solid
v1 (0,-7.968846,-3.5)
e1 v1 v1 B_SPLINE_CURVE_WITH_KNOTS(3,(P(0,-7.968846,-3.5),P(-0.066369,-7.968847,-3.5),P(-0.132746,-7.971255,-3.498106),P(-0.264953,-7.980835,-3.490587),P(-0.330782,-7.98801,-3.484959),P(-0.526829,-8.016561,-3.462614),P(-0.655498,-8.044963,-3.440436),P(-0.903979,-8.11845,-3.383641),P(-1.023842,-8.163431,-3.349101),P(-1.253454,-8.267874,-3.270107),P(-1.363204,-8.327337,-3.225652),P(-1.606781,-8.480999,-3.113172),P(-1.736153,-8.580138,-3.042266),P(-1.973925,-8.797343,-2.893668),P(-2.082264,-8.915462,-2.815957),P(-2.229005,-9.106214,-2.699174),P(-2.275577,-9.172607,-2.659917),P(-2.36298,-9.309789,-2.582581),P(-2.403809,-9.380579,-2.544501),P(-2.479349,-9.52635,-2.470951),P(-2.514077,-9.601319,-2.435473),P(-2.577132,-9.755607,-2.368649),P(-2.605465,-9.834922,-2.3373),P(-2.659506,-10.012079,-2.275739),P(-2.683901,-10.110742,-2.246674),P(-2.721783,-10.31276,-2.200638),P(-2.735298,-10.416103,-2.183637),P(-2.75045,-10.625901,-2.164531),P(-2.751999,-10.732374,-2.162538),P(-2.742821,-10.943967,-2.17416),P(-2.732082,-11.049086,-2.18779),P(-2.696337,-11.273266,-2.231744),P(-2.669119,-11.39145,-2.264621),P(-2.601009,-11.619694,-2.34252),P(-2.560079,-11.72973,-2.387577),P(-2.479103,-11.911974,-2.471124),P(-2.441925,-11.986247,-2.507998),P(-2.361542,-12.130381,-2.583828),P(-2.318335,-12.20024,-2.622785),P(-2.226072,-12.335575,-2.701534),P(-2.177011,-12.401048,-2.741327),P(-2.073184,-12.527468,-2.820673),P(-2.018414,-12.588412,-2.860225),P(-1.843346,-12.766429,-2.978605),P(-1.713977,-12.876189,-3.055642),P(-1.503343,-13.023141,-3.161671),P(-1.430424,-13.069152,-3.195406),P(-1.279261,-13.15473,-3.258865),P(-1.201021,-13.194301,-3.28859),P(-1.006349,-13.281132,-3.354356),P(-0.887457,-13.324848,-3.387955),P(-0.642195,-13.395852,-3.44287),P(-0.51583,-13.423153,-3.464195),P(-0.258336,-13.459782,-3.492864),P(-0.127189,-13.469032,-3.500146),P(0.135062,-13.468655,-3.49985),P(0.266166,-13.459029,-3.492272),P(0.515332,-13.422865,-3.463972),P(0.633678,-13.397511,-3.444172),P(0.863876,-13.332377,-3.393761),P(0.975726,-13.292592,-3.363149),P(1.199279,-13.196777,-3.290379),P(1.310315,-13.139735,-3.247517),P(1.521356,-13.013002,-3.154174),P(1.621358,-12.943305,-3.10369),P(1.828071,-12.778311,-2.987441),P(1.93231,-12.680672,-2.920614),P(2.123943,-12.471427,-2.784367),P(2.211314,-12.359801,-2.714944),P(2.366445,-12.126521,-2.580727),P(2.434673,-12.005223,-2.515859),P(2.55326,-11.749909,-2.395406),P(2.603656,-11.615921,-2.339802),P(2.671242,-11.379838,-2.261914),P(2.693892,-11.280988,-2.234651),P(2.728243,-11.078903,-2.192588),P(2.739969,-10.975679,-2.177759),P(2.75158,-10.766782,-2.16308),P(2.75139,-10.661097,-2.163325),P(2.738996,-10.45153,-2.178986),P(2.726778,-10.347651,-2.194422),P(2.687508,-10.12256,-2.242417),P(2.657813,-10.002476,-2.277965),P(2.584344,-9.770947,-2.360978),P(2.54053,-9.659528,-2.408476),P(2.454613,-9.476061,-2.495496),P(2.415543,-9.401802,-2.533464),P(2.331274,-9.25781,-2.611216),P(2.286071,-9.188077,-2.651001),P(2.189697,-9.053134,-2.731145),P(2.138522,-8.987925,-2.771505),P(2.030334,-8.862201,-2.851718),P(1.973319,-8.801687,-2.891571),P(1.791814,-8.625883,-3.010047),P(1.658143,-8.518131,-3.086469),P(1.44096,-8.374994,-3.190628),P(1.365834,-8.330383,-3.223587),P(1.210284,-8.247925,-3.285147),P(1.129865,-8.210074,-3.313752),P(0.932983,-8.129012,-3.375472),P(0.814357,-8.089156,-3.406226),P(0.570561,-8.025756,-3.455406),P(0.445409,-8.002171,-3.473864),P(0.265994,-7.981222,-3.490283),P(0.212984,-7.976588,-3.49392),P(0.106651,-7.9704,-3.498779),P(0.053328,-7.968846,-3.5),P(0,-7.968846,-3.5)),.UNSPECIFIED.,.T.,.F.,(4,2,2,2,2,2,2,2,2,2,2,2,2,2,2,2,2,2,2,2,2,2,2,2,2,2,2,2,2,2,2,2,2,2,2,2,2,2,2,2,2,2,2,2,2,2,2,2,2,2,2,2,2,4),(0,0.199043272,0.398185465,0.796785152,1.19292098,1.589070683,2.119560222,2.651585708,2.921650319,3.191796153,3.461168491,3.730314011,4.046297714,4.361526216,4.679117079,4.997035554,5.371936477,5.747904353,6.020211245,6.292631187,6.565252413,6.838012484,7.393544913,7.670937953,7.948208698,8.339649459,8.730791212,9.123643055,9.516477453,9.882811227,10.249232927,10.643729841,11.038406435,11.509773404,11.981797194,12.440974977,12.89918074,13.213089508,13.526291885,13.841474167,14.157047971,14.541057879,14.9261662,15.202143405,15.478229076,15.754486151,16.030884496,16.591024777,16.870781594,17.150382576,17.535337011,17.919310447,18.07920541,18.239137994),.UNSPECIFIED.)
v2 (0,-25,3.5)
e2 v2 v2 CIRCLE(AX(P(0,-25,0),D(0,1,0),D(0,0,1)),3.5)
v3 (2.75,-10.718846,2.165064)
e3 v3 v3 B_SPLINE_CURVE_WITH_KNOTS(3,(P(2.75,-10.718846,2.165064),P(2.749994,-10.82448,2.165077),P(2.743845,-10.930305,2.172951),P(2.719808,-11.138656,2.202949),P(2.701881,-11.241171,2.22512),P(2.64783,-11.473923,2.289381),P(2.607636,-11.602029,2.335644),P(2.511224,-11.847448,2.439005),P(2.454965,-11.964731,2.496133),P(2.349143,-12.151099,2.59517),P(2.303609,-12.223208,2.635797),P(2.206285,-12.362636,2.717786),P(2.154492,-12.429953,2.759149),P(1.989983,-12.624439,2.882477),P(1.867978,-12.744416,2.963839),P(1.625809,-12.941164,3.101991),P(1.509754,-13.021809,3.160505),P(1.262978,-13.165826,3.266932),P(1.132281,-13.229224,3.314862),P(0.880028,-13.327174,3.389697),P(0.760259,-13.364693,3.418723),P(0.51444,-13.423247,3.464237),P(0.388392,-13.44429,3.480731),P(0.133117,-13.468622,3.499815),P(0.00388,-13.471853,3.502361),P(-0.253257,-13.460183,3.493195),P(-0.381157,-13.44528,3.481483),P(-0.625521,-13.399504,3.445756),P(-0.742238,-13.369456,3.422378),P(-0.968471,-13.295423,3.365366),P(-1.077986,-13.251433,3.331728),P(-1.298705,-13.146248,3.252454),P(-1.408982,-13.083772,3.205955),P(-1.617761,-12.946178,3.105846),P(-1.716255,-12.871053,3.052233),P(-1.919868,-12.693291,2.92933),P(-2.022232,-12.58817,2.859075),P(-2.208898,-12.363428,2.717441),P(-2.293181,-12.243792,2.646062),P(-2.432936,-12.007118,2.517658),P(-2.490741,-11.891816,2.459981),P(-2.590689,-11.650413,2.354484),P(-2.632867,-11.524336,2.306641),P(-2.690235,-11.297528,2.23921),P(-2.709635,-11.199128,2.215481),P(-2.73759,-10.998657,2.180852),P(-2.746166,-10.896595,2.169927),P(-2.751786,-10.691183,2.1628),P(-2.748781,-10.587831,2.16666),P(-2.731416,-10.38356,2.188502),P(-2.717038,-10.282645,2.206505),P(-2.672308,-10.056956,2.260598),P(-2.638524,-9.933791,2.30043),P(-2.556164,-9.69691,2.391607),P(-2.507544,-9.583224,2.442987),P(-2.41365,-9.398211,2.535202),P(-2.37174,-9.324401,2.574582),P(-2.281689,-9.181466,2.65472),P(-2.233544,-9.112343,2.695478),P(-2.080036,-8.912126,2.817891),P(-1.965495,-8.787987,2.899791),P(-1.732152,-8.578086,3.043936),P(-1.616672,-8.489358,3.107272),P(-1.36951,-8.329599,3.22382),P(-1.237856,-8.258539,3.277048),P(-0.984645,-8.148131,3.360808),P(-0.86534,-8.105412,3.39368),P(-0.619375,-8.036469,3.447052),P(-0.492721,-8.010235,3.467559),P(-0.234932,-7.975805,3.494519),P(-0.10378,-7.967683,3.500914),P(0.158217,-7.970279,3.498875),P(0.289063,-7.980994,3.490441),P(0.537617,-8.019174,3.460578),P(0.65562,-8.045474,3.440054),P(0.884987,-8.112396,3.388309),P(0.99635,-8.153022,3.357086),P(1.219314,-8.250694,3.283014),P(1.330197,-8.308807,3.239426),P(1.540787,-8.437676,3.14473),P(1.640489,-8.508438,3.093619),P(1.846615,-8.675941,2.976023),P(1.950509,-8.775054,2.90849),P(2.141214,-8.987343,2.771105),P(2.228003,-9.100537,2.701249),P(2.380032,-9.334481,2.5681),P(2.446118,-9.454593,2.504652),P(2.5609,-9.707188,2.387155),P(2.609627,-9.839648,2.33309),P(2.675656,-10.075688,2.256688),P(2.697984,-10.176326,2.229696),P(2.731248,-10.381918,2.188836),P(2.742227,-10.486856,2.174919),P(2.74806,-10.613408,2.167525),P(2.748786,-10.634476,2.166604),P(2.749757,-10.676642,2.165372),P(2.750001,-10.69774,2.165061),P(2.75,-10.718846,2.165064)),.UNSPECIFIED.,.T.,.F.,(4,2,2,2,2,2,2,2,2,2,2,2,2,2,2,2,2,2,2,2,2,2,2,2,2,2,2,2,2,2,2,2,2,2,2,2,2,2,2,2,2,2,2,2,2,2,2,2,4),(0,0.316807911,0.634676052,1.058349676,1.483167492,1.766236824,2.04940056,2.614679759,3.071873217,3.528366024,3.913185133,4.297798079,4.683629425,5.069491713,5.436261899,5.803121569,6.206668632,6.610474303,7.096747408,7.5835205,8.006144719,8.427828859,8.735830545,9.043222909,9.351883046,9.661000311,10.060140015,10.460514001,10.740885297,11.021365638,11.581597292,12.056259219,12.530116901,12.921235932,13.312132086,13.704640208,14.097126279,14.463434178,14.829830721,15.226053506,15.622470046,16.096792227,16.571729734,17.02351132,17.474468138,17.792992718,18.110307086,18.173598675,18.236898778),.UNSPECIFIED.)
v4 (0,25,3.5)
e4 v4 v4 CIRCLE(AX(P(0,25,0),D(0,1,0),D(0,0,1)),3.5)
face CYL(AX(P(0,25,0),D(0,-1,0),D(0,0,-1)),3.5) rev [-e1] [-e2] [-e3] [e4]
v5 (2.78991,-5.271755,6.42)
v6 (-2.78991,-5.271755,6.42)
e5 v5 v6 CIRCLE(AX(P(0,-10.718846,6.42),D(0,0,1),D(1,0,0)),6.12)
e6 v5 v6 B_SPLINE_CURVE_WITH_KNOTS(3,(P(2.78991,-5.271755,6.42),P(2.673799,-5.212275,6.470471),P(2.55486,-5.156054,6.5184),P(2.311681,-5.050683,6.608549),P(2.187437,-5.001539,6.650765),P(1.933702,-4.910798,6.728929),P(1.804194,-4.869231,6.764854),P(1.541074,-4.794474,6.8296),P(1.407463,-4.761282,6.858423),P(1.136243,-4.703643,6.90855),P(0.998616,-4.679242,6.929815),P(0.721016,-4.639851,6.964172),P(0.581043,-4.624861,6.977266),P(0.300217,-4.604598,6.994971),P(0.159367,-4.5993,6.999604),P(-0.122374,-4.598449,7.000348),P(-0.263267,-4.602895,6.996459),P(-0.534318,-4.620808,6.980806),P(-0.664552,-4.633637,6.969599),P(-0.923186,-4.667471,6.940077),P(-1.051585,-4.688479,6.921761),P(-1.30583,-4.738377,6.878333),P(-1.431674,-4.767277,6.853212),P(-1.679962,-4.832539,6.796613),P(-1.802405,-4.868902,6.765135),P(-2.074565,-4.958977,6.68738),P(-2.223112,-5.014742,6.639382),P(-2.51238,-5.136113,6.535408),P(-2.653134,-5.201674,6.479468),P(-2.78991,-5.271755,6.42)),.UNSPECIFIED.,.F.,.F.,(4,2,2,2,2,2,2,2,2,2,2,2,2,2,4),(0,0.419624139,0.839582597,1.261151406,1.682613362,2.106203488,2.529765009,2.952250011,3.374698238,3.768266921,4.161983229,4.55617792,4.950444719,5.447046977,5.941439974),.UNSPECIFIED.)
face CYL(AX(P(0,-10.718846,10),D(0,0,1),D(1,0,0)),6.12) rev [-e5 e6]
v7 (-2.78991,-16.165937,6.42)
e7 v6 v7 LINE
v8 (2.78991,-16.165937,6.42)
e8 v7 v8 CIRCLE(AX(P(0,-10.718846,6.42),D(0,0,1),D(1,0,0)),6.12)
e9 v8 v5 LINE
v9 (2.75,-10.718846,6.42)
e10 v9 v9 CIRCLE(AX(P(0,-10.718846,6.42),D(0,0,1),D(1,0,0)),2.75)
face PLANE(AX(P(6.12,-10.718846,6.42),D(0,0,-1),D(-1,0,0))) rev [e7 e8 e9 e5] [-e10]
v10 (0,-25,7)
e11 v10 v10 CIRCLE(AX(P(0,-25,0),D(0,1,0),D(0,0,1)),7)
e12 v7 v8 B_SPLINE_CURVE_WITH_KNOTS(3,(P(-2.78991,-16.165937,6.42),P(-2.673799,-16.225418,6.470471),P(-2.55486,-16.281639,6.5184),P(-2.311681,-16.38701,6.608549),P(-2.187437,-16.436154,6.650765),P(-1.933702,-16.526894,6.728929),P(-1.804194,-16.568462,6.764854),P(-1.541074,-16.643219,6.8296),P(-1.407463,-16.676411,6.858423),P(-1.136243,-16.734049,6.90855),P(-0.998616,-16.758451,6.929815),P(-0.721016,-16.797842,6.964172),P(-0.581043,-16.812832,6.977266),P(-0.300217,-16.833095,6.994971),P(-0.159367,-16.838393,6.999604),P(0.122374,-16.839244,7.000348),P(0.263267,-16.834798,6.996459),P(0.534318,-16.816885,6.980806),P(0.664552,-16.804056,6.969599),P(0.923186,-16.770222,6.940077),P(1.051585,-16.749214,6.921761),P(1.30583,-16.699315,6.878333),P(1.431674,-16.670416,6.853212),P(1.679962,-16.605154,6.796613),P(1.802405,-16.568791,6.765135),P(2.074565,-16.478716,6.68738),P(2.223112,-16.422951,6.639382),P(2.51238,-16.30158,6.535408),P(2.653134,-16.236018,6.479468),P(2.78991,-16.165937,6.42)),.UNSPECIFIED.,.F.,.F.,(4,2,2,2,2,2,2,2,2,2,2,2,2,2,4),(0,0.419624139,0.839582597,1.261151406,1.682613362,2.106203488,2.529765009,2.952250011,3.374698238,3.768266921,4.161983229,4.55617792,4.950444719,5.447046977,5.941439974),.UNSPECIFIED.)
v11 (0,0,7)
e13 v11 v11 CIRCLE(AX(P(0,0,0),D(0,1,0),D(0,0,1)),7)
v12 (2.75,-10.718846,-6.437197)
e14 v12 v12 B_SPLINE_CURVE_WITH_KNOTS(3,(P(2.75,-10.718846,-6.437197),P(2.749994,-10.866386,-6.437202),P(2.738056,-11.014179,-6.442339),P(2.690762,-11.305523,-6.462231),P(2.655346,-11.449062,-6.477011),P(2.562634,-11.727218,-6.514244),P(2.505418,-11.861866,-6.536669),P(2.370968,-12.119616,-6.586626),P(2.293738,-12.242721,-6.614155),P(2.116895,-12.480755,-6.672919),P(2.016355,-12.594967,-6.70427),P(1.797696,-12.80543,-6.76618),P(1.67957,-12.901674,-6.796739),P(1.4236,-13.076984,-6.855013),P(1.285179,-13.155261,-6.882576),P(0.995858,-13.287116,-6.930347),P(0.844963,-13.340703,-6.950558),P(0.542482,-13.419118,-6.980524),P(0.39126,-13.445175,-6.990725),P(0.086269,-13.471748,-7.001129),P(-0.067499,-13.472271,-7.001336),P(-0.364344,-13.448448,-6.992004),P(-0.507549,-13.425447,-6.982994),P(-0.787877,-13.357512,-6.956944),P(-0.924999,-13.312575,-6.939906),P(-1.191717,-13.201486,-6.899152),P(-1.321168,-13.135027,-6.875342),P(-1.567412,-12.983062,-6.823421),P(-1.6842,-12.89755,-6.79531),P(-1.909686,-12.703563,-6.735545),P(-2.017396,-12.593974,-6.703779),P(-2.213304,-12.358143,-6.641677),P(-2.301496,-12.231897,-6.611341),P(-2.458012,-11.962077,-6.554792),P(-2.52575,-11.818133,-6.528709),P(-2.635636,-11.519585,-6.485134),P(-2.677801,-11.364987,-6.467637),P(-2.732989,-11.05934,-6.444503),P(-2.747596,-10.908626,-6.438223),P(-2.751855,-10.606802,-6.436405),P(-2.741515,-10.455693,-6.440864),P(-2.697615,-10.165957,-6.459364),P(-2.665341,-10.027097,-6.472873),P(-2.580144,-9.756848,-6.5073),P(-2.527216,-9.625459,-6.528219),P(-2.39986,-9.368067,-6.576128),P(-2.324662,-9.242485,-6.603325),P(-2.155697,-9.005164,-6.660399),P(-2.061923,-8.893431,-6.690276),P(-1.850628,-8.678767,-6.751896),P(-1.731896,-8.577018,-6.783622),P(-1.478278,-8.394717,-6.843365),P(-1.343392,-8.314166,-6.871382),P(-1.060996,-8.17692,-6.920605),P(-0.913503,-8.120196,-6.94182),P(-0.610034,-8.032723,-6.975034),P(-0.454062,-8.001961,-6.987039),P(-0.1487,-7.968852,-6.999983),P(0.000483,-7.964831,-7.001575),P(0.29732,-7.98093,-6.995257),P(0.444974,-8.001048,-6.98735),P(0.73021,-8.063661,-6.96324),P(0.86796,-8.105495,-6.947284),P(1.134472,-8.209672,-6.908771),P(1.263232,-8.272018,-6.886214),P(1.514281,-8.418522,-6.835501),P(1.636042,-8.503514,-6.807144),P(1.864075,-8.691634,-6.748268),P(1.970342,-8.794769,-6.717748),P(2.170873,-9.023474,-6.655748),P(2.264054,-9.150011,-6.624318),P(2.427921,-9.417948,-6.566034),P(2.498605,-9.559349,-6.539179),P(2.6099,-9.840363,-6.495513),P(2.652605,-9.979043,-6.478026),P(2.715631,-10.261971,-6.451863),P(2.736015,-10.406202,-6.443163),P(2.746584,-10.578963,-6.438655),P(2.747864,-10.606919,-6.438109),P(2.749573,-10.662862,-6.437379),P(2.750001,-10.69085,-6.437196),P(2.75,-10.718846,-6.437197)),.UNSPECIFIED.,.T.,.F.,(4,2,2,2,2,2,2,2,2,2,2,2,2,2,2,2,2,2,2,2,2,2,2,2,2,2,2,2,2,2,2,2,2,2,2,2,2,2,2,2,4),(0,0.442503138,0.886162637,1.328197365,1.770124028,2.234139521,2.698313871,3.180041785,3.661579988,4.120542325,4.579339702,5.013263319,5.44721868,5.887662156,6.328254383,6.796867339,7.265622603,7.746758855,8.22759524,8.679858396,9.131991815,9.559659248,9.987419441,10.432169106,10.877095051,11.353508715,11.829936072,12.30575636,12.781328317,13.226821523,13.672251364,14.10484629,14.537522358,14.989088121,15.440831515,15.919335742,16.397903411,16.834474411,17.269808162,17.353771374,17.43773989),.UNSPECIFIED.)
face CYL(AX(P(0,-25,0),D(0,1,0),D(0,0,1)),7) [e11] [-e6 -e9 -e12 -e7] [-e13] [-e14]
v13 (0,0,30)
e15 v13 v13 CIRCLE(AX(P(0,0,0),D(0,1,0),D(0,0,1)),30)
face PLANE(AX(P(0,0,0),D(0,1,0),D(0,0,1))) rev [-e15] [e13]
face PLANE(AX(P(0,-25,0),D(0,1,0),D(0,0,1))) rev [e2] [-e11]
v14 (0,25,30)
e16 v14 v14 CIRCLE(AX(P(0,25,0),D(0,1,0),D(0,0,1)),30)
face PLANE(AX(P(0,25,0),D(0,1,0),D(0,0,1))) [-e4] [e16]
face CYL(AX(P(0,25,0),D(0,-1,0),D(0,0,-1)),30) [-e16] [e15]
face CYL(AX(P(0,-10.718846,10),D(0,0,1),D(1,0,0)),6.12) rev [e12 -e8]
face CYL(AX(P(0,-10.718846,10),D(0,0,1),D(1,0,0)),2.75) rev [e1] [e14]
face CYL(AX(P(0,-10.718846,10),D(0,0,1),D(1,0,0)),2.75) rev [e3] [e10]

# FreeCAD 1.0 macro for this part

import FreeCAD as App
import Part
import Sketcher
from FreeCAD import Vector
Q = App.Units.Quantity


def add_polygon(sketch, points):
    """Adds a closed chain of lines whose ends are joined by coincident constraints."""
    first, n = sketch.GeometryCount, len(points)
    for a, b in zip(points, points[1:] + points[:1]):
        sketch.addGeometry(Part.LineSegment(App.Vector(*a, 0), App.Vector(*b, 0)), False)
    for i in range(n):
        sketch.addConstraint(Sketcher.Constraint("Coincident", first + i, 2, first + (i + 1) % n, 1))

doc = App.newDocument("Part")
body = doc.addObject("PartDesign::Body", "Body")

# Sketch on XZ plane
sketch1 = doc.addObject("Sketcher::SketchObject", "Sketch")
body.addObject(sketch1)
sketch1.AttachmentSupport = (doc.XZ_Plane, [""])
sketch1.MapMode = "FlatFace"
sketch1.addGeometry(Part.Circle(Vector(0, 0, 0), Vector(0, 0, 1), 30), False)
sketch1.addGeometry(Part.Circle(Vector(0, 0, 0), Vector(0, 0, 1), 7), False)
sketch1.addConstraint(Sketcher.Constraint("Coincident", 0, 3, -1, 1))
sketch1.addConstraint(Sketcher.Constraint("Coincident", 1, 3, -1, 1))
sketch1.addConstraint(Sketcher.Constraint("Diameter", 0, 60.0))
sketch1.addConstraint(Sketcher.Constraint("Diameter", 1, 14.0))
pad1 = doc.addObject("PartDesign::Pad", "Pad")
body.addObject(pad1)
pad1.Profile = sketch1
pad1.Length = 25
pad1.Reversed = True

# Sketch on XZ plane
sketch2 = doc.addObject("Sketcher::SketchObject", "Sketch001")
body.addObject(sketch2)
sketch2.AttachmentSupport = (doc.XZ_Plane, [""])
sketch2.MapMode = "FlatFace"
sketch2.addGeometry(Part.Circle(Vector(0, 0, 0), Vector(0, 0, 1), 7), False)
sketch2.addConstraint(Sketcher.Constraint("Coincident", 0, 3, -1, 1))
sketch2.addConstraint(Sketcher.Constraint("Diameter", 0, 14.0))
pad2 = doc.addObject("PartDesign::Pad", "Pad001")
body.addObject(pad2)
pad2.Profile = sketch2
pad2.Length = 25
pad2.Reversed = True

# Sketch on XZ plane
sketch3 = doc.addObject("Sketcher::SketchObject", "Sketch002")
body.addObject(sketch3)
sketch3.AttachmentSupport = (doc.XZ_Plane, [""])
sketch3.MapMode = "FlatFace"
sketch3.addGeometry(Part.Circle(Vector(0, 0, 0), Vector(0, 0, 1), 3.5), False)
sketch3.addConstraint(Sketcher.Constraint("Coincident", 0, 3, -1, 1))
sketch3.addConstraint(Sketcher.Constraint("Diameter", 0, 7.0))
pocket1 = doc.addObject("PartDesign::Pocket", "Pocket")
body.addObject(pocket1)
pocket1.Profile = sketch3
pocket1.Length = 25

# Sketch on XZ plane
sketch4 = doc.addObject("Sketcher::SketchObject", "Sketch003")
body.addObject(sketch4)
sketch4.AttachmentSupport = (doc.XZ_Plane, [""])
sketch4.MapMode = "FlatFace"
sketch4.AttachmentOffset = App.Placement(Vector(0, 0, 25), App.Rotation())
sketch4.addGeometry(Part.Circle(Vector(0, 0, 0), Vector(0, 0, 1), 7), False)
sketch4.addGeometry(Part.Circle(Vector(0, 0, 0), Vector(0, 0, 1), 3.5), False)
sketch4.addConstraint(Sketcher.Constraint("Coincident", 0, 3, -1, 1))
sketch4.addConstraint(Sketcher.Constraint("Coincident", 1, 3, -1, 1))
sketch4.addConstraint(Sketcher.Constraint("Diameter", 0, 14.0))
sketch4.addConstraint(Sketcher.Constraint("Diameter", 1, 7.0))
pad3 = doc.addObject("PartDesign::Pad", "Pad002")
body.addObject(pad3)
pad3.Profile = sketch4
pad3.Length = 25
pad3.Reversed = True

# Sketch on YZ plane
sketch5 = doc.addObject("Sketcher::SketchObject", "Sketch004")
body.addObject(sketch5)
sketch5.AttachmentSupport = (doc.YZ_Plane, [""])
sketch5.MapMode = "FlatFace"
add_polygon(sketch5, [(-10.719, -30), (-10.719, 10), (-16.864, 10), (-16.839, 9.975), (-16.839, 6.42), (-13.469, 6.42), (-13.469, -30)])  # lines 0-6
sketch5.addGeometry(Part.LineSegment(Vector(-10.719, 10, 0), Vector(-10.719, -30, 0)), True)  # axis
sketch5.addConstraint(Sketcher.Constraint("Vertical", 0))
sketch5.addConstraint(Sketcher.Constraint("Horizontal", 1))
sketch5.addConstraint(Sketcher.Constraint("Vertical", 3))
sketch5.addConstraint(Sketcher.Constraint("Horizontal", 4))
sketch5.addConstraint(Sketcher.Constraint("Vertical", 5))
sketch5.addConstraint(Sketcher.Constraint("Horizontal", 6))
sketch5.addConstraint(Sketcher.Constraint("Vertical", 7))
sketch5.addConstraint(Sketcher.Constraint("Coincident", 7, 1, 0, 2))
sketch5.addConstraint(Sketcher.Constraint("Horizontal", 5, 2, 7, 2))
sketch5.addConstraint(Sketcher.Constraint("DistanceY", 0, 1, 0, 2, 40.0))
sketch5.addConstraint(Sketcher.Constraint("Angle", 2, Q("-45 deg")))
sketch5.addConstraint(Sketcher.Constraint("DistanceY", -1, 1, 0, 2, 10.0))
sketch5.addConstraint(Sketcher.Constraint("DistanceX", 4, 1, 4, 2, 3.37))
sketch5.addConstraint(Sketcher.Constraint("DistanceX", 6, 1, 6, 2, 2.75))
sketch5.addConstraint(Sketcher.Constraint("DistanceY", 5, 2, 5, 1, 36.42))
sketch5.addConstraint(Sketcher.Constraint("DistanceX", 1, 2, 1, 1, 6.145))
sketch5.addConstraint(Sketcher.Constraint("DistanceX", 0, 2, -1, 1, 10.718846))
groove = doc.addObject("PartDesign::Groove", "Groove")
body.addObject(groove)
groove.Profile = sketch5
groove.ReferenceAxis = (sketch5, ["Axis0"])
groove.Angle = 360

doc.recompute()
